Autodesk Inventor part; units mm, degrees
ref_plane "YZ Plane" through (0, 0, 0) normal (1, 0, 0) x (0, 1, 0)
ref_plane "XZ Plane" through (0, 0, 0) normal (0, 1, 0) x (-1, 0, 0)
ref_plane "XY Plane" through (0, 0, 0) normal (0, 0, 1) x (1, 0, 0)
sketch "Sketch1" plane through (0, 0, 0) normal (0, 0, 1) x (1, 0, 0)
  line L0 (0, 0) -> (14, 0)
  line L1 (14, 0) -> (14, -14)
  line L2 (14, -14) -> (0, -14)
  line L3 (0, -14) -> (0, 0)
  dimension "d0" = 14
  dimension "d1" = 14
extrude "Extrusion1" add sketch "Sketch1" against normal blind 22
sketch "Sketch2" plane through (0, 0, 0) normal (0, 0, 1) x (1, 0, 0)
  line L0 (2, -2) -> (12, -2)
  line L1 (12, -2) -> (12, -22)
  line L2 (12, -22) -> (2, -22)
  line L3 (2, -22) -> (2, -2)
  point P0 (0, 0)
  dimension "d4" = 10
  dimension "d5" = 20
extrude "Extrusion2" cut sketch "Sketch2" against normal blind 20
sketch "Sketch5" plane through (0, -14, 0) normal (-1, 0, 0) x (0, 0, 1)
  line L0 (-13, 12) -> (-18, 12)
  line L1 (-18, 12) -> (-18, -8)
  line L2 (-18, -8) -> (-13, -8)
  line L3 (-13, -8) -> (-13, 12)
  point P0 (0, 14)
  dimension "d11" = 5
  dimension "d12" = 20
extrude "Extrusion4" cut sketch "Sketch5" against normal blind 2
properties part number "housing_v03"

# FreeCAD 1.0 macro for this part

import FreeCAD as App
import Part
import Sketcher

V = App.Vector
Q = App.Units.Quantity


def add_polygon(sketch, points):
    """Adds a closed chain of lines whose ends are joined by coincident constraints."""
    first, n = sketch.GeometryCount, len(points)
    for a, b in zip(points, points[1:] + points[:1]):
        sketch.addGeometry(Part.LineSegment(App.Vector(*a, 0), App.Vector(*b, 0)), False)
    for i in range(n):
        sketch.addConstraint(Sketcher.Constraint("Coincident", first + i, 2, first + (i + 1) % n, 1))

doc = App.newDocument("Part")
body = doc.addObject("PartDesign::Body", "Body")

sketch1 = body.newObject("Sketcher::SketchObject", "Sketch")
sketch1.AttachmentSupport = (doc.getObject("XY_Plane"), [""])
sketch1.MapMode = "FlatFace"
add_polygon(sketch1, [(14, 0), (0, 0), (0, -14), (14, -14)])
sketch1.addConstraint(Sketcher.Constraint("Horizontal", 0))
sketch1.addConstraint(Sketcher.Constraint("Vertical", 1))
sketch1.addConstraint(Sketcher.Constraint("Horizontal", 2))
sketch1.addConstraint(Sketcher.Constraint("Vertical", 3))
sketch1.addConstraint(Sketcher.Constraint("Coincident", 0, 2, -1, 1))
sketch1.addConstraint(Sketcher.Constraint("Equal", 2, 1))
sketch1.addConstraint(Sketcher.Constraint("DistanceX", 0, 2, 0, 1, Q("14 mm")))
pad1 = body.newObject("PartDesign::Pad", "Pad")
pad1.Profile = sketch1
pad1.Length = 22
pad1.Reversed = True

sketch2 = body.newObject("Sketcher::SketchObject", "Sketch001")
sketch2.AttachmentSupport = (doc.getObject("XY_Plane"), [""])
sketch2.MapMode = "FlatFace"
add_polygon(sketch2, [(12, -2), (2, -2), (2, -22), (12, -22)])
sketch2.addConstraint(Sketcher.Constraint("Horizontal", 0))
sketch2.addConstraint(Sketcher.Constraint("Vertical", 1))
sketch2.addConstraint(Sketcher.Constraint("Horizontal", 2))
sketch2.addConstraint(Sketcher.Constraint("Vertical", 3))
sketch2.addConstraint(Sketcher.Constraint("DistanceX", 0, 2, 0, 1, Q("10 mm")))
sketch2.addConstraint(Sketcher.Constraint("DistanceY", 1, 2, 1, 1, Q("20 mm")))
sketch2.addConstraint(Sketcher.Constraint("DistanceX", -1, 1, 0, 2, Q("2 mm")))
sketch2.addConstraint(Sketcher.Constraint("DistanceY", 0, 2, -1, 1, Q("2 mm")))
pocket1 = body.newObject("PartDesign::Pocket", "Pocket")
pocket1.Profile = sketch2
pocket1.Length = 20

sketch3 = body.newObject("Sketcher::SketchObject", "Sketch002")
sketch3.AttachmentSupport = (doc.getObject("YZ_Plane"), [""])
sketch3.MapMode = "FlatFace"
add_polygon(sketch3, [(-22, -13), (-2, -13), (-2, -18), (-22, -18)])
sketch3.addConstraint(Sketcher.Constraint("Horizontal", 0))
sketch3.addConstraint(Sketcher.Constraint("Vertical", 1))
sketch3.addConstraint(Sketcher.Constraint("Horizontal", 2))
sketch3.addConstraint(Sketcher.Constraint("Vertical", 3))
sketch3.addConstraint(Sketcher.Constraint("DistanceX", 0, 1, 0, 2, Q("20 mm")))
sketch3.addConstraint(Sketcher.Constraint("DistanceY", 1, 2, 1, 1, Q("5 mm")))
sketch3.addConstraint(Sketcher.Constraint("DistanceX", 0, 2, -1, 1, Q("2 mm")))
sketch3.addConstraint(Sketcher.Constraint("DistanceY", 0, 2, -1, 1, Q("13 mm")))
pocket2 = body.newObject("PartDesign::Pocket", "Pocket001")
pocket2.Profile = sketch3
pocket2.Length = 2
pocket2.Reversed = True

doc.recompute()
